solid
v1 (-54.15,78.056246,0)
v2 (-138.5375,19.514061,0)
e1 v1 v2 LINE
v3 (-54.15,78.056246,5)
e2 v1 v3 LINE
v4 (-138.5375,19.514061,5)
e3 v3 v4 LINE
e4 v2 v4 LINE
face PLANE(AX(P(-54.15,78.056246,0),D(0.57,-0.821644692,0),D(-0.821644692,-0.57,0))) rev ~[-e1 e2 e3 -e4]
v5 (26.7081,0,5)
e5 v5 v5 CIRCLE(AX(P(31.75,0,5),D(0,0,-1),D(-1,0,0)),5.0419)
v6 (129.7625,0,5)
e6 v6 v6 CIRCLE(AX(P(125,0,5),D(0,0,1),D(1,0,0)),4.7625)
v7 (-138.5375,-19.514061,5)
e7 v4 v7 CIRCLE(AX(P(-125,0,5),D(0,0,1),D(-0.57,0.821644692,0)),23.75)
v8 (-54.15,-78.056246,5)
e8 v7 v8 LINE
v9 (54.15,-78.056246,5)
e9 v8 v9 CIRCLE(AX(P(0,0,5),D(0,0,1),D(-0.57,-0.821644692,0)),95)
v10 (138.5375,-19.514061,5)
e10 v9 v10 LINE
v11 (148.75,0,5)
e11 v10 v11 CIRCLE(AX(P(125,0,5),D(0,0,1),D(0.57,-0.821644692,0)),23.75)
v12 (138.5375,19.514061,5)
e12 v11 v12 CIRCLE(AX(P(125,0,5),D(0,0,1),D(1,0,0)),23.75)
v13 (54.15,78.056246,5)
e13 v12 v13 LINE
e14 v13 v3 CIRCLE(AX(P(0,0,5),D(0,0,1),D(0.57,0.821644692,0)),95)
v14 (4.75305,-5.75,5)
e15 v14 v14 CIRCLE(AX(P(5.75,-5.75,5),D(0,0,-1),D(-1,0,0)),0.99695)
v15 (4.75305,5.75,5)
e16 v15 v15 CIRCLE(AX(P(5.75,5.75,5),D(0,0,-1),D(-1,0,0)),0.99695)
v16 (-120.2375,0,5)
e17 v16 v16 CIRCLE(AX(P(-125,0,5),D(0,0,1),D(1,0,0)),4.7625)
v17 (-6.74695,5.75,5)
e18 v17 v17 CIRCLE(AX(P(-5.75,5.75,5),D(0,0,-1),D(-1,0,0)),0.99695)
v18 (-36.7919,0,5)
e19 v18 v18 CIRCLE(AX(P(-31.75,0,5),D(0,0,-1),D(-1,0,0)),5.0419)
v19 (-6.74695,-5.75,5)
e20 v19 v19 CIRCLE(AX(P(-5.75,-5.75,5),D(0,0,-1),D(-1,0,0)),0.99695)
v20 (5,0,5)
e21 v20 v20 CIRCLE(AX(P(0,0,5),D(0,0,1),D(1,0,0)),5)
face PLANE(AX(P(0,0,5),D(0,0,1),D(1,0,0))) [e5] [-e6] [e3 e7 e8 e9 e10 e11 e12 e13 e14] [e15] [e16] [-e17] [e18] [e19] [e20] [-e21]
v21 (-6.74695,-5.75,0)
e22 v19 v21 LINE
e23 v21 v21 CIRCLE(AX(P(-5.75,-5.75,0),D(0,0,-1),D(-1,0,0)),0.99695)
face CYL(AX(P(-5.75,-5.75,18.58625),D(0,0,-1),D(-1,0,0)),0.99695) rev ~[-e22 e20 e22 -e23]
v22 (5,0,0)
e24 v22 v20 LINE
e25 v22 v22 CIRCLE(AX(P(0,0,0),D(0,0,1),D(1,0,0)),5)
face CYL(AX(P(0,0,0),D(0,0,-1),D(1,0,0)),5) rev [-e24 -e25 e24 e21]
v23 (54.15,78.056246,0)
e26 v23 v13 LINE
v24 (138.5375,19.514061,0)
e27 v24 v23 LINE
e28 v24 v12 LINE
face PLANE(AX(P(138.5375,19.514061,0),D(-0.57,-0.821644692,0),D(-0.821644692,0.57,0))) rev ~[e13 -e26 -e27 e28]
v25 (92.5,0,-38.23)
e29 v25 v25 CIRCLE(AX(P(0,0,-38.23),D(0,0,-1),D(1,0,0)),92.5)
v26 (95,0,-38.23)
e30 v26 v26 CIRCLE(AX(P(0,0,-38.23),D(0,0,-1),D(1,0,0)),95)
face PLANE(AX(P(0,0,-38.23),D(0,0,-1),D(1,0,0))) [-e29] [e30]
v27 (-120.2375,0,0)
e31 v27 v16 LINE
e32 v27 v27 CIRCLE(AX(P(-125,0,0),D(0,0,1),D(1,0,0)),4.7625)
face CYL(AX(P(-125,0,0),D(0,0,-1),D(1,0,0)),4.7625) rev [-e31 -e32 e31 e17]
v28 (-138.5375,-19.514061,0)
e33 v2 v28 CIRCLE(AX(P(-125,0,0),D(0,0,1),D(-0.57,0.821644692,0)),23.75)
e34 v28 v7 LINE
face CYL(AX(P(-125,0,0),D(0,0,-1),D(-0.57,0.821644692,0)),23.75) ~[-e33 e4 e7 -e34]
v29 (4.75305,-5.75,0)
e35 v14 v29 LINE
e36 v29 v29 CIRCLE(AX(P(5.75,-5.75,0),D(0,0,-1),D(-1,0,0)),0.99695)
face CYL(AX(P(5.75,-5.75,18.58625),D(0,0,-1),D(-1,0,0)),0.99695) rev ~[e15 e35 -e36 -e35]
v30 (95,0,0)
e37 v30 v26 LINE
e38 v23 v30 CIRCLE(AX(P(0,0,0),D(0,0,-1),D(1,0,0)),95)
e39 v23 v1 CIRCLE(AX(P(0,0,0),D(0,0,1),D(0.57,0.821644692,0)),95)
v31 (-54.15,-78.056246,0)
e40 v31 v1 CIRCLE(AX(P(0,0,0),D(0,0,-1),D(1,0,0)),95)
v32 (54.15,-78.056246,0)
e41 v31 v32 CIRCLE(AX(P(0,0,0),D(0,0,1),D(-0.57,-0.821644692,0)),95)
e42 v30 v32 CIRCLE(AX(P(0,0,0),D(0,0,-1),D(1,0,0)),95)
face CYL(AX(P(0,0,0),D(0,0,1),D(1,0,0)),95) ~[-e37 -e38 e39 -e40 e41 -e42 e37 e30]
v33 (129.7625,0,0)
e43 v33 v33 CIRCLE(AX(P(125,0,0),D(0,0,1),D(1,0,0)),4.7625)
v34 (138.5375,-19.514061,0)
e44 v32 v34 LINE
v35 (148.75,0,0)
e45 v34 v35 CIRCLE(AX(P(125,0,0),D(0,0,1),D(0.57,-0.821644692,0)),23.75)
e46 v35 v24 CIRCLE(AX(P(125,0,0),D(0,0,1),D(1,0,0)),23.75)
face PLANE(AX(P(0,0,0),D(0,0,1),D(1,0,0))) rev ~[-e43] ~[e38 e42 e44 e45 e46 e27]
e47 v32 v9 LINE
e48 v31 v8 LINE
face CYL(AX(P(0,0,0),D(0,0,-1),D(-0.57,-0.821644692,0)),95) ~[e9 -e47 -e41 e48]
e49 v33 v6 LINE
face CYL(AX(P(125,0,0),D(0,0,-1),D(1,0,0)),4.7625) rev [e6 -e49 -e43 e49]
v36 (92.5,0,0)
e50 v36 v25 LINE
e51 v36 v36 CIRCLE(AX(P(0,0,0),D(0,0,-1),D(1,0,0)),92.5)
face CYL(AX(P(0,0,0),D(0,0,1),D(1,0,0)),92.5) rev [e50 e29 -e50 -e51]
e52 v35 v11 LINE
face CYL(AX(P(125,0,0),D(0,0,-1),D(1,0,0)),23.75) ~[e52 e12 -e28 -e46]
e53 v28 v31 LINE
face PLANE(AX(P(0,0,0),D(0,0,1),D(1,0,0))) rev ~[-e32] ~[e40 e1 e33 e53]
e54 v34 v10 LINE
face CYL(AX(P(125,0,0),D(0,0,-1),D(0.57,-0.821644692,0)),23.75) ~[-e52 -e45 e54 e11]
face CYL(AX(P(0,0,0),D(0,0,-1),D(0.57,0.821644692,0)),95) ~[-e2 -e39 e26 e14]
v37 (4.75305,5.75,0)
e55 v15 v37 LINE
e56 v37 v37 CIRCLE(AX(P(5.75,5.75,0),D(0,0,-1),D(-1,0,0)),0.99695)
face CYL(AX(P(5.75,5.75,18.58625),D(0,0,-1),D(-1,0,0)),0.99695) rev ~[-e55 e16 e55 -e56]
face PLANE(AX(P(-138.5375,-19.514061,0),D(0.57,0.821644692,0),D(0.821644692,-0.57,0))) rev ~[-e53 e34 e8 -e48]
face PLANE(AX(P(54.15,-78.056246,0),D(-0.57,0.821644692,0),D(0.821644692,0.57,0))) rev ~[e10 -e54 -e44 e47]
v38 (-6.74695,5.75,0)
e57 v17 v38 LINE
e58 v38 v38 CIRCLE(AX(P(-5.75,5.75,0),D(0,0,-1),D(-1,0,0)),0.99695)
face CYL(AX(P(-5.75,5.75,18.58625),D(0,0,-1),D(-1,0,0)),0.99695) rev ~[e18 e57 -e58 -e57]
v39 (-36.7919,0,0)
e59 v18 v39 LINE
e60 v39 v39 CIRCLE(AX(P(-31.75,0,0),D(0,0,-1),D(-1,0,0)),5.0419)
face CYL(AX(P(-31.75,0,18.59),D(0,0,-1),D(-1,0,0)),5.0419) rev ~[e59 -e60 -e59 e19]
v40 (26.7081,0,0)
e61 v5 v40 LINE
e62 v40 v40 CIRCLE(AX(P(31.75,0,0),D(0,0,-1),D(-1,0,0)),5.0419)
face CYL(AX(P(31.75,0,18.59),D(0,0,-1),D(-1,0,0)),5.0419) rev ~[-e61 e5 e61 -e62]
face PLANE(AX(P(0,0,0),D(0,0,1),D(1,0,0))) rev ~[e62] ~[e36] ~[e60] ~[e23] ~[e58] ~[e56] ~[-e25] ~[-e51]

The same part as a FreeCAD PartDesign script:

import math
import FreeCAD as App
import Part
import Sketcher

V = App.Vector

doc = App.newDocument("Part")
body = doc.addObject("PartDesign::Body", "Body")

sketch1 = doc.addObject("Sketcher::SketchObject", "Sketch")
body.addObject(sketch1)
sketch1.AttachmentSupport = (doc.XY_Plane, [""])
sketch1.MapMode = "FlatFace"
sketch1.addGeometry([
    Part.ArcOfCircle(Part.Circle(V(0, 0, 0), V(0, 0, 1), 95), math.radians(-125), math.radians(-55)),
    Part.LineSegment(V(54.1, -78.1, 0), V(138.5, -19.5, 0)),
    Part.ArcOfCircle(Part.Circle(V(125, 0, 0), V(0, 0, 1), 23.8), math.radians(-55), math.radians(0)),
    Part.ArcOfCircle(Part.Circle(V(125, 0, 0), V(0, 0, 1), 23.8), math.radians(0), math.radians(55)),
    Part.LineSegment(V(138.5, 19.5, 0), V(54.1, 78.1, 0)),
    Part.ArcOfCircle(Part.Circle(V(0, 0, 0), V(0, 0, 1), 95), math.radians(55), math.radians(125)),
    Part.LineSegment(V(-54.1, 78.1, 0), V(-138.5, 19.5, 0)),
    Part.ArcOfCircle(Part.Circle(V(-125, 0, 0), V(0, 0, 1), 23.8), math.radians(125), math.radians(235)),
    Part.LineSegment(V(-138.5, -19.5, 0), V(-54.1, -78.1, 0)),
    Part.Circle(V(-125, 0, 0), V(0, 0, 1), 4.8),
    Part.Circle(V(0, 0, 0), V(0, 0, 1), 5),
    Part.Circle(V(125, 0, 0), V(0, 0, 1), 4.8),
], False)
sketch1.addConstraint([
    Sketcher.Constraint("Tangent", 0, 2, 1, 1),
    Sketcher.Constraint("Tangent", 1, 2, 2, 1),
    Sketcher.Constraint("Tangent", 2, 2, 3, 1),
    Sketcher.Constraint("Tangent", 3, 2, 4, 1),
    Sketcher.Constraint("Tangent", 4, 2, 5, 1),
    Sketcher.Constraint("Tangent", 5, 2, 6, 1),
    Sketcher.Constraint("Tangent", 6, 2, 7, 1),
    Sketcher.Constraint("Tangent", 7, 2, 8, 1),
    Sketcher.Constraint("Tangent", 8, 2, 0, 1),
    Sketcher.Constraint("Coincident", 0, 3, -1, 1),
    Sketcher.Constraint("Coincident", 5, 3, -1, 1),
    Sketcher.Constraint("Coincident", 10, 3, -1, 1),
    Sketcher.Constraint("Coincident", 9, 3, 7, 3),
    Sketcher.Constraint("Coincident", 11, 3, 2, 3),
    Sketcher.Constraint("Equal", 2, 3),
    Sketcher.Constraint("Equal", 0, 5),
    Sketcher.Constraint("Equal", 3, 7),
    Sketcher.Constraint("Equal", 9, 11),
    Sketcher.Constraint("Symmetric", 2, 3, 7, 3, -1, 1),
    Sketcher.Constraint("PointOnObject", 2, 3, -1),
    Sketcher.Constraint("PointOnObject", 2, 2, -1),
    Sketcher.Constraint("Diameter", 10, 10.0),
    Sketcher.Constraint("Radius", 0, 95.0),
    Sketcher.Constraint("Radius", 2, 23.75),
    Sketcher.Constraint("Diameter", 9, 9.525),
    Sketcher.Constraint("DistanceX", -1, 1, 2, 3, 125.0),
])
pad1 = doc.addObject("PartDesign::Pad", "Pad")
body.addObject(pad1)
pad1.Profile = sketch1
pad1.Length = 5

sketch2 = doc.addObject("Sketcher::SketchObject", "Sketch001")
body.addObject(sketch2)
sketch2.AttachmentSupport = (doc.XY_Plane, [""])
sketch2.MapMode = "FlatFace"
sketch2.addGeometry([
    Part.Circle(V(0, 0, 0), V(0, 0, 1), 95),
    Part.Circle(V(0, 0, 0), V(0, 0, 1), 92),
], False)
sketch2.addConstraint([
    Sketcher.Constraint("Coincident", 0, 3, -1, 1),
    Sketcher.Constraint("Coincident", 1, 3, -1, 1),
    Sketcher.Constraint("Diameter", 0, 190.0),
    Sketcher.Constraint("Diameter", 1, 185.0),
])
pad2 = doc.addObject("PartDesign::Pad", "Pad001")
body.addObject(pad2)
pad2.Profile = sketch2
pad2.Length = 38.23
pad2.Reversed = True

sketch3 = doc.addObject("Sketcher::SketchObject", "Sketch002")
body.addObject(sketch3)
sketch3.AttachmentSupport = (doc.XY_Plane, [""])
sketch3.MapMode = "FlatFace"
sketch3.AttachmentOffset = App.Placement(V(0, 0, 5), App.Rotation())
sketch3.addGeometry([
    Part.Circle(V(-5.8, 5.8, 0), V(0, 0, 1), 1),
    Part.Circle(V(5.8, 5.8, 0), V(0, 0, 1), 1),
    Part.Circle(V(5.8, -5.8, 0), V(0, 0, 1), 1),
    Part.Circle(V(-5.8, -5.8, 0), V(0, 0, 1), 1),
], False)
sketch3.addConstraint([
    Sketcher.Constraint("Equal", 0, 1),
    Sketcher.Constraint("Equal", 1, 2),
    Sketcher.Constraint("Equal", 2, 3),
    Sketcher.Constraint("Symmetric", 0, 3, 2, 3, -1, 1),
    Sketcher.Constraint("Symmetric", 1, 3, 3, 3, -1, 1),
    Sketcher.Constraint("Symmetric", 0, 3, 1, 3, -2),
    Sketcher.Constraint("Diameter", 0, 1.9939),
    Sketcher.Constraint("DistanceX", 0, 3, 1, 3, 11.5),
    Sketcher.Constraint("DistanceY", 2, 3, 1, 3, 11.5),
])
doc.recompute()
hole = doc.addObject("PartDesign::Hole", "Hole")
body.addObject(hole)
hole.Profile = sketch3
hole.ThreadType = "None"
hole.Diameter = 1.9939
hole.DepthType = "Dimension"
hole.Depth = 13.58625
hole.DrillPoint = "Angled"
hole.DrillPointAngle = 118

sketch4 = doc.addObject("Sketcher::SketchObject", "Sketch003")
body.addObject(sketch4)
sketch4.AttachmentSupport = (doc.XY_Plane, [""])
sketch4.MapMode = "FlatFace"
sketch4.AttachmentOffset = App.Placement(V(0, 0, 5), App.Rotation())
sketch4.addGeometry([
    Part.Circle(V(-32, 0, 0), V(0, 0, 1), 5),
    Part.Circle(V(32, 0, 0), V(0, 0, 1), 5),
], False)
sketch4.addConstraint([
    Sketcher.Constraint("Equal", 0, 1),
    Sketcher.Constraint("Symmetric", 0, 3, 1, 3, -1, 1),
    Sketcher.Constraint("PointOnObject", 0, 3, -1),
    Sketcher.Constraint("Diameter", 0, 10.0838),
    Sketcher.Constraint("DistanceX", 0, 3, 1, 3, 63.5),
])
doc.recompute()
hole2 = doc.addObject("PartDesign::Hole", "Hole001")
body.addObject(hole2)
hole2.Profile = sketch4
hole2.ThreadType = "None"
hole2.Diameter = 10.0838
hole2.DepthType = "Dimension"
hole2.Depth = 13.59
hole2.DrillPoint = "Angled"
hole2.DrillPointAngle = 118

doc.recompute()
